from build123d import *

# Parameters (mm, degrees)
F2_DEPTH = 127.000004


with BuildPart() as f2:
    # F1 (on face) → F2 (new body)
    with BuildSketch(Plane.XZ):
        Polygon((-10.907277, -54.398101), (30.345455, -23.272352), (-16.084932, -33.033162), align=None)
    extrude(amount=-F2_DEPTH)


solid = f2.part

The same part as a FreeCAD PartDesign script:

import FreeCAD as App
import Part
import Sketcher

V = App.Vector
Q = App.Units.Quantity


def add_polygon(sketch, points):
    """Adds a closed chain of lines whose ends are joined by coincident constraints."""
    first, n = sketch.GeometryCount, len(points)
    for a, b in zip(points, points[1:] + points[:1]):
        sketch.addGeometry(Part.LineSegment(App.Vector(*a, 0), App.Vector(*b, 0)), False)
    for i in range(n):
        sketch.addConstraint(Sketcher.Constraint("Coincident", first + i, 2, first + (i + 1) % n, 1))

doc = App.newDocument("Part")
body = doc.addObject("PartDesign::Body", "Body")

sketch1 = body.newObject("Sketcher::SketchObject", "Sketch")
sketch1.AttachmentSupport = (doc.getObject("XZ_Plane"), [""])
sketch1.MapMode = "FlatFace"
add_polygon(sketch1, [(-11, -54), (30, -23), (-16, -33)])
sketch1.addConstraint([
    Sketcher.Constraint("DistanceY", 2, 2, -1, 1, Q("54.398101 mm")),
    Sketcher.Constraint("Distance", 0, Q("51.67785 mm")),
    Sketcher.Constraint("DistanceX", 1, 2, -1, 1, Q("16.084932 mm")),
    Sketcher.Constraint("DistanceY", 1, 2, -1, 1, Q("33.033162 mm")),
    Sketcher.Constraint("DistanceY", 1, 2, 0, 2, Q("9.76081 mm")),
    Sketcher.Constraint("Distance", 1, Q("47.445276 mm")),
])
pad1 = body.newObject("PartDesign::Pad", "Pad")
pad1.Profile = sketch1
pad1.Length = Q("5.0000002 in")
pad1.Reversed = True

doc.recompute()
